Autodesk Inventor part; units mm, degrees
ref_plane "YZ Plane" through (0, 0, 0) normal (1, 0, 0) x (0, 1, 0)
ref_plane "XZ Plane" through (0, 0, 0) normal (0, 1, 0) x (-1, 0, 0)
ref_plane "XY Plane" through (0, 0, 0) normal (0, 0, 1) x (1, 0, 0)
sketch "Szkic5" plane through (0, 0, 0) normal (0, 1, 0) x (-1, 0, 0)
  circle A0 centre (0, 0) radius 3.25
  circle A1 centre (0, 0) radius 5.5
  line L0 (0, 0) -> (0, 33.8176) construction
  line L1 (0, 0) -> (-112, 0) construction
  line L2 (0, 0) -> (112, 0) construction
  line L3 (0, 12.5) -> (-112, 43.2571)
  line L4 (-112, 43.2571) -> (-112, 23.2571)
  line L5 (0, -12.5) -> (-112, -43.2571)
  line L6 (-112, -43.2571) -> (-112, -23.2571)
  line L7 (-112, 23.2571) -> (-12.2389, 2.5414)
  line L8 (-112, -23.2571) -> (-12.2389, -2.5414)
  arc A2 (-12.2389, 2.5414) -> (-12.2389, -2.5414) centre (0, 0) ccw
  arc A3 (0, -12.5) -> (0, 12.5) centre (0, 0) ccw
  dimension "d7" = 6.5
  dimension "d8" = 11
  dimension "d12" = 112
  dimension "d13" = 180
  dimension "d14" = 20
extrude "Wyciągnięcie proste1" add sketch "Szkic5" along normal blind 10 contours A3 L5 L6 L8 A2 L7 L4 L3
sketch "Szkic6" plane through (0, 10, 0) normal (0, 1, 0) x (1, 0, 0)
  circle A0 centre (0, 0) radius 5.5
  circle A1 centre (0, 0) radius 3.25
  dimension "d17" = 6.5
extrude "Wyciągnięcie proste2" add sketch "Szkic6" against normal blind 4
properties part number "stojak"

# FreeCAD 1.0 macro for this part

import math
import FreeCAD as App
import Part
import Sketcher
Q = App.Units.Quantity

doc = App.newDocument("Part")
body = doc.addObject("PartDesign::Body", "Body")

# Sketch on XZ plane
sketch1 = body.newObject("Sketcher::SketchObject", "Sketch")
sketch1.AttachmentSupport = (doc.getObject("XZ_Plane"), [""])
sketch1.MapMode = "FlatFace"
sketch1.addGeometry([
    Part.ArcOfCircle(Part.Circle(App.Vector(0, 0, 0), App.Vector(0, 0, 1), 12.5), math.radians(90), math.radians(270)),  # 0
    Part.LineSegment(App.Vector(0, 12.5, 0), App.Vector(112, 43.2571, 0)),  # 1
    Part.LineSegment(App.Vector(112, 43.2571, 0), App.Vector(112, 23.2571, 0)),  # 2
    Part.LineSegment(App.Vector(112, 23.2571, 0), App.Vector(12.2389, 2.5414, 0)),  # 3
    Part.ArcOfCircle(Part.Circle(App.Vector(0, 0, 0), App.Vector(0, 0, 1), 12.499975), math.radians(-11.730726), math.radians(11.730726)),  # 4
    Part.LineSegment(App.Vector(12.2389, -2.5414, 0), App.Vector(112, -23.2571, 0)),  # 5
    Part.LineSegment(App.Vector(112, -23.2571, 0), App.Vector(112, -43.2571, 0)),  # 6
    Part.LineSegment(App.Vector(112, -43.2571, 0), App.Vector(0, -12.5, 0)),  # 7
    Part.Circle(App.Vector(0, 0, 0), App.Vector(0, 0, 1), 5.5),  # 8
], False)
sketch1.addConstraint([
    Sketcher.Constraint("Coincident", 0, 1, 1, 1),
    Sketcher.Constraint("Coincident", 1, 2, 2, 1),
    Sketcher.Constraint("Coincident", 2, 2, 3, 1),
    Sketcher.Constraint("Coincident", 3, 2, 4, 2),
    Sketcher.Constraint("Coincident", 4, 1, 5, 1),
    Sketcher.Constraint("Coincident", 5, 2, 6, 1),
    Sketcher.Constraint("Coincident", 6, 2, 7, 1),
    Sketcher.Constraint("Coincident", 7, 2, 0, 2),
    Sketcher.Constraint("Vertical", 2),
    Sketcher.Constraint("Vertical", 6),
    Sketcher.Constraint("Coincident", 0, 3, -1, 1),
    Sketcher.Constraint("Coincident", 4, 3, -1, 1),
    Sketcher.Constraint("Coincident", 8, 3, -1, 1),
    Sketcher.Constraint("Equal", 0, 4),
    Sketcher.Constraint("Symmetric", 2, 2, 5, 2, -1),
    Sketcher.Constraint("PointOnObject", 0, 1, -2),
    Sketcher.Constraint("PointOnObject", 7, 2, -2),
    Sketcher.Constraint("Vertical", 3, 2, 4, 1),
    Sketcher.Constraint("Equal", 2, 6),
    Sketcher.Constraint("Diameter", 8, 11.0),
    Sketcher.Constraint("DistanceY", 2, 2, 2, 1, 20.0),
    Sketcher.Constraint("DistanceX", -1, 1, 1, 2, 112.0),
    Sketcher.Constraint("Radius", 0, 12.5),
    Sketcher.Constraint("Angle", 3, Q("-168.269 deg")),
    Sketcher.Constraint("DistanceY", -1, 1, 1, 2, 43.257),
])
pad1 = body.newObject("PartDesign::Pad", "Pad")
pad1.Profile = sketch1
pad1.Length = 10
pad1.Reversed = True

# Sketch on XZ plane
sketch2 = body.newObject("Sketcher::SketchObject", "Sketch001")
sketch2.AttachmentSupport = (doc.getObject("XZ_Plane"), [""])
sketch2.MapMode = "FlatFace"
sketch2.AttachmentOffset = App.Placement(App.Vector(0, 0, -10), App.Rotation())
sketch2.addGeometry([
    Part.Circle(App.Vector(0, 0, 0), App.Vector(0, 0, 1), 5.5),
    Part.Circle(App.Vector(0, 0, 0), App.Vector(0, 0, 1), 3.25),
], False)
sketch2.addConstraint([
    Sketcher.Constraint("Coincident", 0, 3, -1, 1),
    Sketcher.Constraint("Coincident", 1, 3, -1, 1),
    Sketcher.Constraint("Diameter", 1, 6.5),
    Sketcher.Constraint("Diameter", 0, 11.0),
])
pad2 = body.newObject("PartDesign::Pad", "Pad001")
pad2.Profile = sketch2
pad2.Length = 4

doc.recompute()
